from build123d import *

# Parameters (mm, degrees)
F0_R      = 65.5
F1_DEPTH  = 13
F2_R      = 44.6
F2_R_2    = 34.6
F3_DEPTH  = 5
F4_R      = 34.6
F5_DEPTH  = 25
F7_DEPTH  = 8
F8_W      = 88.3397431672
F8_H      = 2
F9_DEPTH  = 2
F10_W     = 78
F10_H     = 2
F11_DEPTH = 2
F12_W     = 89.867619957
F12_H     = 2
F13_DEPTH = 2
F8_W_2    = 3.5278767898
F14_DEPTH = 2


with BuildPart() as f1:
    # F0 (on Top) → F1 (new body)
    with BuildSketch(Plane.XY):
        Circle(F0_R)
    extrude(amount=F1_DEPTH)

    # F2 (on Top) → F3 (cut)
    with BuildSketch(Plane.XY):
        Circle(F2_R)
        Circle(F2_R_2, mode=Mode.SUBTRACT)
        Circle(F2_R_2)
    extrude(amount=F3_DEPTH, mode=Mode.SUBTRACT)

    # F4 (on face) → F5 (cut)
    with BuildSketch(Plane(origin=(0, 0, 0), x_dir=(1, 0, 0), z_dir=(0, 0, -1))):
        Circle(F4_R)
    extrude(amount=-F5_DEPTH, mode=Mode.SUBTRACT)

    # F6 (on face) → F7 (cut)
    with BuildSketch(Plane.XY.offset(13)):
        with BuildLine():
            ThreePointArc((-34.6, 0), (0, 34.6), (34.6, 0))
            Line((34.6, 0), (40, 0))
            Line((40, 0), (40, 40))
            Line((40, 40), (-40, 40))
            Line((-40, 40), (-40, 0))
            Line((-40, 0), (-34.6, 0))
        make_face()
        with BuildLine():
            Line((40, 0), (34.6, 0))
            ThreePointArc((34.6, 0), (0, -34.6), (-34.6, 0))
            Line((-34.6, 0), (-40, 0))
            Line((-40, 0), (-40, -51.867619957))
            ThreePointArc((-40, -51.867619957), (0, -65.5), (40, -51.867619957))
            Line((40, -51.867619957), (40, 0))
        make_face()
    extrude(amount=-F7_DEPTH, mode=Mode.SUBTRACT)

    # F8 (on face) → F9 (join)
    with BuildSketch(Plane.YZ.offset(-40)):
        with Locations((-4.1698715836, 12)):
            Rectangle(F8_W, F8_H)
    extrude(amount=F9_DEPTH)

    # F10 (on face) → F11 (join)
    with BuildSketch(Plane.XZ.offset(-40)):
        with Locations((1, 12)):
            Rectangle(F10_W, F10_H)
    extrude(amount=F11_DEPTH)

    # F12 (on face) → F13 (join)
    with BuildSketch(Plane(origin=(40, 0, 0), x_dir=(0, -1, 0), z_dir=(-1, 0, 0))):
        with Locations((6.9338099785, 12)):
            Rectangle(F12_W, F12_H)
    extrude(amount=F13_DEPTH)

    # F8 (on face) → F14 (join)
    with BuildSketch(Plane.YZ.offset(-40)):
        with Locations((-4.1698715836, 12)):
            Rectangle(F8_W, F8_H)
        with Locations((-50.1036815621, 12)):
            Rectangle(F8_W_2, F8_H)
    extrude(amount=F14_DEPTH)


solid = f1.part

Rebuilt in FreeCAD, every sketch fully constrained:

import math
import FreeCAD as App
import Part
import Sketcher

V = App.Vector


def add_polygon(sketch, points):
    """Adds a closed chain of lines whose ends are joined by coincident constraints."""
    first, n = sketch.GeometryCount, len(points)
    for a, b in zip(points, points[1:] + points[:1]):
        sketch.addGeometry(Part.LineSegment(App.Vector(*a, 0), App.Vector(*b, 0)), False)
    for i in range(n):
        sketch.addConstraint(Sketcher.Constraint("Coincident", first + i, 2, first + (i + 1) % n, 1))

doc = App.newDocument("Part")
params = doc.addObject("Spreadsheet::Sheet", "Params")
for row, (alias, value) in enumerate([
    ("sketch1_diameter", "131 mm"),
    ("pad1_length", "13 mm"),
    ("sketch2_diameter", "89.2 mm"),
    ("pocket1_length", "5 mm"),
    ("sketch3_diameter", "69.2 mm"),
    ("pocket2_length", "25 mm"),
    ("sketch4_diameter", "69.2 mm"),
    ("sketch4_radius", "65.5 mm"),
    ("sketch4_width", "80 mm"),
    ("pocket3_length", "8 mm"),
    ("sketch5_height", "2 mm"),
    ("pad2_length", "2 mm"),
    ("sketch6_width", "78 mm"),
    ("sketch6_height", "2 mm"),
    ("pad3_length", "2 mm"),
    ("sketch7_height", "2 mm"),
    ("pad4_length", "2 mm"),
    ("sketch8_height", "2 mm"),
    ("pad5_length", "2 mm"),
], start=1):
    params.set(f"A{row}", alias)
    params.set(f"B{row}", "=" + value)
    params.setAlias(f"B{row}", alias)

body = doc.addObject("PartDesign::Body", "Body")

sketch1 = body.newObject("Sketcher::SketchObject", "Sketch")
sketch1.AttachmentSupport = (doc.getObject("XY_Plane"), [""])
sketch1.MapMode = "FlatFace"
sketch1.addGeometry(Part.Circle(V(0, 0, 0), V(0, 0, 1), 66), False)
sketch1.addConstraint([
    Sketcher.Constraint("Coincident", 0, 3, -1, 1),
    Sketcher.Constraint("Diameter", 0, 131.0),
])
sketch1.setExpression("Constraints[1]", "Params.sketch1_diameter")
pad1 = body.newObject("PartDesign::Pad", "Pad")
pad1.Profile = sketch1
pad1.setExpression("Length", "Params.pad1_length")

sketch2 = body.newObject("Sketcher::SketchObject", "Sketch001")
sketch2.AttachmentSupport = (doc.getObject("XY_Plane"), [""])
sketch2.MapMode = "FlatFace"
sketch2.addGeometry(Part.Circle(V(0, 0, 0), V(0, 0, 1), 45), False)
sketch2.addConstraint([
    Sketcher.Constraint("Coincident", 0, 3, -1, 1),
    Sketcher.Constraint("Diameter", 0, 89.2),
])
sketch2.setExpression("Constraints[1]", "Params.sketch2_diameter")
pocket1 = body.newObject("PartDesign::Pocket", "Pocket")
pocket1.Profile = sketch2
pocket1.setExpression("Length", "Params.pocket1_length")
pocket1.Reversed = True

sketch3 = body.newObject("Sketcher::SketchObject", "Sketch002")
sketch3.AttachmentSupport = (doc.getObject("XY_Plane"), [""])
sketch3.MapMode = "FlatFace"
sketch3.addGeometry(Part.Circle(V(0, 0, 0), V(0, 0, 1), 35), False)
sketch3.addConstraint([
    Sketcher.Constraint("Coincident", 0, 3, -1, 1),
    Sketcher.Constraint("Diameter", 0, 69.2),
])
sketch3.setExpression("Constraints[1]", "Params.sketch3_diameter")
pocket2 = body.newObject("PartDesign::Pocket", "Pocket001")
pocket2.Profile = sketch3
pocket2.setExpression("Length", "Params.pocket2_length")
pocket2.Reversed = True

sketch4 = body.newObject("Sketcher::SketchObject", "Sketch003")
sketch4.AttachmentSupport = (doc.getObject("XY_Plane"), [""])
sketch4.MapMode = "FlatFace"
sketch4.AttachmentOffset = App.Placement(V(0, 0, 13), App.Rotation())
sketch4.addGeometry([
    Part.LineSegment(V(40, 40, 0), V(-40, 40, 0)),
    Part.LineSegment(V(-40, 40, 0), V(-40, -52, 0)),
    Part.ArcOfCircle(Part.Circle(V(0, 0, 0), V(0, 0, 1), 66), math.radians(-128), math.radians(-52)),
    Part.LineSegment(V(40, -52, 0), V(40, 40, 0)),
    Part.Circle(V(0, 0, 0), V(0, 0, 1), 35),
], False)
sketch4.addConstraint([
    Sketcher.Constraint("Coincident", 0, 2, 1, 1),
    Sketcher.Constraint("Coincident", 1, 2, 2, 1),
    Sketcher.Constraint("Coincident", 2, 2, 3, 1),
    Sketcher.Constraint("Coincident", 3, 2, 0, 1),
    Sketcher.Constraint("Horizontal", 0),
    Sketcher.Constraint("Vertical", 1),
    Sketcher.Constraint("Vertical", 3),
    Sketcher.Constraint("Coincident", 2, 3, -1, 1),
    Sketcher.Constraint("Coincident", 4, 3, -1, 1),
    Sketcher.Constraint("Horizontal", 1, 2, 2, 2),
    Sketcher.Constraint("Diameter", 4, 69.2),
    Sketcher.Constraint("Radius", 2, 65.5),
    Sketcher.Constraint("DistanceX", 0, 2, 0, 1, 80.0),
    Sketcher.Constraint("DistanceY", -1, 1, 0, 2, 40.0),
])
sketch4.setExpression("Constraints[10]", "Params.sketch4_diameter")
sketch4.setExpression("Constraints[11]", "Params.sketch4_radius")
sketch4.setExpression("Constraints[12]", "Params.sketch4_width")
pocket3 = body.newObject("PartDesign::Pocket", "Pocket002")
pocket3.Profile = sketch4
pocket3.setExpression("Length", "Params.pocket3_length")

sketch5 = body.newObject("Sketcher::SketchObject", "Sketch004")
sketch5.AttachmentSupport = (doc.getObject("YZ_Plane"), [""])
sketch5.MapMode = "FlatFace"
sketch5.AttachmentOffset = App.Placement(V(0, 0, -40), App.Rotation())
add_polygon(sketch5, [(-48.3, 13), (-48.3, 11), (40, 11), (40, 13)])
sketch5.addConstraint([
    Sketcher.Constraint("Vertical", 0),
    Sketcher.Constraint("Horizontal", 1),
    Sketcher.Constraint("Vertical", 2),
    Sketcher.Constraint("Horizontal", 3),
    Sketcher.Constraint("DistanceY", 0, 2, 0, 1, 2.0),
    Sketcher.Constraint("DistanceY", -1, 1, 0, 2, 11.0),
    Sketcher.Constraint("DistanceX", -1, 1, 1, 2, 40.0),
    Sketcher.Constraint("DistanceX", 1, 1, 1, 2, 88.339743),
])
sketch5.setExpression("Constraints[8]", "Params.sketch5_height")
pad2 = body.newObject("PartDesign::Pad", "Pad001")
pad2.Profile = sketch5
pad2.setExpression("Length", "Params.pad2_length")

sketch6 = body.newObject("Sketcher::SketchObject", "Sketch005")
sketch6.AttachmentSupport = (doc.getObject("XZ_Plane"), [""])
sketch6.MapMode = "FlatFace"
sketch6.AttachmentOffset = App.Placement(V(0, 0, -40), App.Rotation())
add_polygon(sketch6, [(-38, 13), (-38, 11), (40, 11), (40, 13)])
sketch6.addConstraint([
    Sketcher.Constraint("Vertical", 0),
    Sketcher.Constraint("Horizontal", 1),
    Sketcher.Constraint("Vertical", 2),
    Sketcher.Constraint("Horizontal", 3),
    Sketcher.Constraint("DistanceX", 1, 1, 1, 2, 78.0),
    Sketcher.Constraint("DistanceY", 0, 2, 0, 1, 2.0),
    Sketcher.Constraint("DistanceX", 0, 2, -1, 1, 38.0),
    Sketcher.Constraint("DistanceY", -1, 1, 0, 2, 11.0),
])
sketch6.setExpression("Constraints[8]", "Params.sketch6_width")
sketch6.setExpression("Constraints[9]", "Params.sketch6_height")
pad3 = body.newObject("PartDesign::Pad", "Pad002")
pad3.Profile = sketch6
pad3.setExpression("Length", "Params.pad3_length")

sketch7 = body.newObject("Sketcher::SketchObject", "Sketch006")
sketch7.AttachmentSupport = (doc.getObject("YZ_Plane"), [""])
sketch7.MapMode = "FlatFace"
sketch7.AttachmentOffset = App.Placement(V(0, 0, 40), App.Rotation())
add_polygon(sketch7, [(38, 13), (38, 11), (-51.9, 11), (-51.9, 13)])
sketch7.addConstraint([
    Sketcher.Constraint("Vertical", 0),
    Sketcher.Constraint("Horizontal", 1),
    Sketcher.Constraint("Vertical", 2),
    Sketcher.Constraint("Horizontal", 3),
    Sketcher.Constraint("DistanceY", 0, 2, 0, 1, 2.0),
    Sketcher.Constraint("DistanceX", -1, 1, 0, 2, 38.0),
    Sketcher.Constraint("DistanceY", -1, 1, 0, 2, 11.0),
    Sketcher.Constraint("DistanceX", 1, 2, 1, 1, 89.86762),
])
sketch7.setExpression("Constraints[8]", "Params.sketch7_height")
pad4 = body.newObject("PartDesign::Pad", "Pad003")
pad4.Profile = sketch7
pad4.setExpression("Length", "Params.pad4_length")
pad4.Reversed = True

sketch8 = body.newObject("Sketcher::SketchObject", "Sketch007")
sketch8.AttachmentSupport = (doc.getObject("YZ_Plane"), [""])
sketch8.MapMode = "FlatFace"
sketch8.AttachmentOffset = App.Placement(V(0, 0, -40), App.Rotation())
add_polygon(sketch8, [(40, 11), (40, 13), (-51.9, 13), (-51.9, 11)])
sketch8.addConstraint([
    Sketcher.Constraint("Vertical", 0),
    Sketcher.Constraint("Horizontal", 1),
    Sketcher.Constraint("Vertical", 2),
    Sketcher.Constraint("Horizontal", 3),
    Sketcher.Constraint("DistanceY", 0, 1, 0, 2, 2.0),
    Sketcher.Constraint("DistanceX", -1, 1, 0, 2, 40.0),
    Sketcher.Constraint("DistanceY", -1, 1, 0, 2, 13.0),
    Sketcher.Constraint("DistanceX", 1, 2, 1, 1, 91.86762),
])
sketch8.setExpression("Constraints[8]", "Params.sketch8_height")
pad5 = body.newObject("PartDesign::Pad", "Pad004")
pad5.Profile = sketch8
pad5.setExpression("Length", "Params.pad5_length")

doc.recompute()
